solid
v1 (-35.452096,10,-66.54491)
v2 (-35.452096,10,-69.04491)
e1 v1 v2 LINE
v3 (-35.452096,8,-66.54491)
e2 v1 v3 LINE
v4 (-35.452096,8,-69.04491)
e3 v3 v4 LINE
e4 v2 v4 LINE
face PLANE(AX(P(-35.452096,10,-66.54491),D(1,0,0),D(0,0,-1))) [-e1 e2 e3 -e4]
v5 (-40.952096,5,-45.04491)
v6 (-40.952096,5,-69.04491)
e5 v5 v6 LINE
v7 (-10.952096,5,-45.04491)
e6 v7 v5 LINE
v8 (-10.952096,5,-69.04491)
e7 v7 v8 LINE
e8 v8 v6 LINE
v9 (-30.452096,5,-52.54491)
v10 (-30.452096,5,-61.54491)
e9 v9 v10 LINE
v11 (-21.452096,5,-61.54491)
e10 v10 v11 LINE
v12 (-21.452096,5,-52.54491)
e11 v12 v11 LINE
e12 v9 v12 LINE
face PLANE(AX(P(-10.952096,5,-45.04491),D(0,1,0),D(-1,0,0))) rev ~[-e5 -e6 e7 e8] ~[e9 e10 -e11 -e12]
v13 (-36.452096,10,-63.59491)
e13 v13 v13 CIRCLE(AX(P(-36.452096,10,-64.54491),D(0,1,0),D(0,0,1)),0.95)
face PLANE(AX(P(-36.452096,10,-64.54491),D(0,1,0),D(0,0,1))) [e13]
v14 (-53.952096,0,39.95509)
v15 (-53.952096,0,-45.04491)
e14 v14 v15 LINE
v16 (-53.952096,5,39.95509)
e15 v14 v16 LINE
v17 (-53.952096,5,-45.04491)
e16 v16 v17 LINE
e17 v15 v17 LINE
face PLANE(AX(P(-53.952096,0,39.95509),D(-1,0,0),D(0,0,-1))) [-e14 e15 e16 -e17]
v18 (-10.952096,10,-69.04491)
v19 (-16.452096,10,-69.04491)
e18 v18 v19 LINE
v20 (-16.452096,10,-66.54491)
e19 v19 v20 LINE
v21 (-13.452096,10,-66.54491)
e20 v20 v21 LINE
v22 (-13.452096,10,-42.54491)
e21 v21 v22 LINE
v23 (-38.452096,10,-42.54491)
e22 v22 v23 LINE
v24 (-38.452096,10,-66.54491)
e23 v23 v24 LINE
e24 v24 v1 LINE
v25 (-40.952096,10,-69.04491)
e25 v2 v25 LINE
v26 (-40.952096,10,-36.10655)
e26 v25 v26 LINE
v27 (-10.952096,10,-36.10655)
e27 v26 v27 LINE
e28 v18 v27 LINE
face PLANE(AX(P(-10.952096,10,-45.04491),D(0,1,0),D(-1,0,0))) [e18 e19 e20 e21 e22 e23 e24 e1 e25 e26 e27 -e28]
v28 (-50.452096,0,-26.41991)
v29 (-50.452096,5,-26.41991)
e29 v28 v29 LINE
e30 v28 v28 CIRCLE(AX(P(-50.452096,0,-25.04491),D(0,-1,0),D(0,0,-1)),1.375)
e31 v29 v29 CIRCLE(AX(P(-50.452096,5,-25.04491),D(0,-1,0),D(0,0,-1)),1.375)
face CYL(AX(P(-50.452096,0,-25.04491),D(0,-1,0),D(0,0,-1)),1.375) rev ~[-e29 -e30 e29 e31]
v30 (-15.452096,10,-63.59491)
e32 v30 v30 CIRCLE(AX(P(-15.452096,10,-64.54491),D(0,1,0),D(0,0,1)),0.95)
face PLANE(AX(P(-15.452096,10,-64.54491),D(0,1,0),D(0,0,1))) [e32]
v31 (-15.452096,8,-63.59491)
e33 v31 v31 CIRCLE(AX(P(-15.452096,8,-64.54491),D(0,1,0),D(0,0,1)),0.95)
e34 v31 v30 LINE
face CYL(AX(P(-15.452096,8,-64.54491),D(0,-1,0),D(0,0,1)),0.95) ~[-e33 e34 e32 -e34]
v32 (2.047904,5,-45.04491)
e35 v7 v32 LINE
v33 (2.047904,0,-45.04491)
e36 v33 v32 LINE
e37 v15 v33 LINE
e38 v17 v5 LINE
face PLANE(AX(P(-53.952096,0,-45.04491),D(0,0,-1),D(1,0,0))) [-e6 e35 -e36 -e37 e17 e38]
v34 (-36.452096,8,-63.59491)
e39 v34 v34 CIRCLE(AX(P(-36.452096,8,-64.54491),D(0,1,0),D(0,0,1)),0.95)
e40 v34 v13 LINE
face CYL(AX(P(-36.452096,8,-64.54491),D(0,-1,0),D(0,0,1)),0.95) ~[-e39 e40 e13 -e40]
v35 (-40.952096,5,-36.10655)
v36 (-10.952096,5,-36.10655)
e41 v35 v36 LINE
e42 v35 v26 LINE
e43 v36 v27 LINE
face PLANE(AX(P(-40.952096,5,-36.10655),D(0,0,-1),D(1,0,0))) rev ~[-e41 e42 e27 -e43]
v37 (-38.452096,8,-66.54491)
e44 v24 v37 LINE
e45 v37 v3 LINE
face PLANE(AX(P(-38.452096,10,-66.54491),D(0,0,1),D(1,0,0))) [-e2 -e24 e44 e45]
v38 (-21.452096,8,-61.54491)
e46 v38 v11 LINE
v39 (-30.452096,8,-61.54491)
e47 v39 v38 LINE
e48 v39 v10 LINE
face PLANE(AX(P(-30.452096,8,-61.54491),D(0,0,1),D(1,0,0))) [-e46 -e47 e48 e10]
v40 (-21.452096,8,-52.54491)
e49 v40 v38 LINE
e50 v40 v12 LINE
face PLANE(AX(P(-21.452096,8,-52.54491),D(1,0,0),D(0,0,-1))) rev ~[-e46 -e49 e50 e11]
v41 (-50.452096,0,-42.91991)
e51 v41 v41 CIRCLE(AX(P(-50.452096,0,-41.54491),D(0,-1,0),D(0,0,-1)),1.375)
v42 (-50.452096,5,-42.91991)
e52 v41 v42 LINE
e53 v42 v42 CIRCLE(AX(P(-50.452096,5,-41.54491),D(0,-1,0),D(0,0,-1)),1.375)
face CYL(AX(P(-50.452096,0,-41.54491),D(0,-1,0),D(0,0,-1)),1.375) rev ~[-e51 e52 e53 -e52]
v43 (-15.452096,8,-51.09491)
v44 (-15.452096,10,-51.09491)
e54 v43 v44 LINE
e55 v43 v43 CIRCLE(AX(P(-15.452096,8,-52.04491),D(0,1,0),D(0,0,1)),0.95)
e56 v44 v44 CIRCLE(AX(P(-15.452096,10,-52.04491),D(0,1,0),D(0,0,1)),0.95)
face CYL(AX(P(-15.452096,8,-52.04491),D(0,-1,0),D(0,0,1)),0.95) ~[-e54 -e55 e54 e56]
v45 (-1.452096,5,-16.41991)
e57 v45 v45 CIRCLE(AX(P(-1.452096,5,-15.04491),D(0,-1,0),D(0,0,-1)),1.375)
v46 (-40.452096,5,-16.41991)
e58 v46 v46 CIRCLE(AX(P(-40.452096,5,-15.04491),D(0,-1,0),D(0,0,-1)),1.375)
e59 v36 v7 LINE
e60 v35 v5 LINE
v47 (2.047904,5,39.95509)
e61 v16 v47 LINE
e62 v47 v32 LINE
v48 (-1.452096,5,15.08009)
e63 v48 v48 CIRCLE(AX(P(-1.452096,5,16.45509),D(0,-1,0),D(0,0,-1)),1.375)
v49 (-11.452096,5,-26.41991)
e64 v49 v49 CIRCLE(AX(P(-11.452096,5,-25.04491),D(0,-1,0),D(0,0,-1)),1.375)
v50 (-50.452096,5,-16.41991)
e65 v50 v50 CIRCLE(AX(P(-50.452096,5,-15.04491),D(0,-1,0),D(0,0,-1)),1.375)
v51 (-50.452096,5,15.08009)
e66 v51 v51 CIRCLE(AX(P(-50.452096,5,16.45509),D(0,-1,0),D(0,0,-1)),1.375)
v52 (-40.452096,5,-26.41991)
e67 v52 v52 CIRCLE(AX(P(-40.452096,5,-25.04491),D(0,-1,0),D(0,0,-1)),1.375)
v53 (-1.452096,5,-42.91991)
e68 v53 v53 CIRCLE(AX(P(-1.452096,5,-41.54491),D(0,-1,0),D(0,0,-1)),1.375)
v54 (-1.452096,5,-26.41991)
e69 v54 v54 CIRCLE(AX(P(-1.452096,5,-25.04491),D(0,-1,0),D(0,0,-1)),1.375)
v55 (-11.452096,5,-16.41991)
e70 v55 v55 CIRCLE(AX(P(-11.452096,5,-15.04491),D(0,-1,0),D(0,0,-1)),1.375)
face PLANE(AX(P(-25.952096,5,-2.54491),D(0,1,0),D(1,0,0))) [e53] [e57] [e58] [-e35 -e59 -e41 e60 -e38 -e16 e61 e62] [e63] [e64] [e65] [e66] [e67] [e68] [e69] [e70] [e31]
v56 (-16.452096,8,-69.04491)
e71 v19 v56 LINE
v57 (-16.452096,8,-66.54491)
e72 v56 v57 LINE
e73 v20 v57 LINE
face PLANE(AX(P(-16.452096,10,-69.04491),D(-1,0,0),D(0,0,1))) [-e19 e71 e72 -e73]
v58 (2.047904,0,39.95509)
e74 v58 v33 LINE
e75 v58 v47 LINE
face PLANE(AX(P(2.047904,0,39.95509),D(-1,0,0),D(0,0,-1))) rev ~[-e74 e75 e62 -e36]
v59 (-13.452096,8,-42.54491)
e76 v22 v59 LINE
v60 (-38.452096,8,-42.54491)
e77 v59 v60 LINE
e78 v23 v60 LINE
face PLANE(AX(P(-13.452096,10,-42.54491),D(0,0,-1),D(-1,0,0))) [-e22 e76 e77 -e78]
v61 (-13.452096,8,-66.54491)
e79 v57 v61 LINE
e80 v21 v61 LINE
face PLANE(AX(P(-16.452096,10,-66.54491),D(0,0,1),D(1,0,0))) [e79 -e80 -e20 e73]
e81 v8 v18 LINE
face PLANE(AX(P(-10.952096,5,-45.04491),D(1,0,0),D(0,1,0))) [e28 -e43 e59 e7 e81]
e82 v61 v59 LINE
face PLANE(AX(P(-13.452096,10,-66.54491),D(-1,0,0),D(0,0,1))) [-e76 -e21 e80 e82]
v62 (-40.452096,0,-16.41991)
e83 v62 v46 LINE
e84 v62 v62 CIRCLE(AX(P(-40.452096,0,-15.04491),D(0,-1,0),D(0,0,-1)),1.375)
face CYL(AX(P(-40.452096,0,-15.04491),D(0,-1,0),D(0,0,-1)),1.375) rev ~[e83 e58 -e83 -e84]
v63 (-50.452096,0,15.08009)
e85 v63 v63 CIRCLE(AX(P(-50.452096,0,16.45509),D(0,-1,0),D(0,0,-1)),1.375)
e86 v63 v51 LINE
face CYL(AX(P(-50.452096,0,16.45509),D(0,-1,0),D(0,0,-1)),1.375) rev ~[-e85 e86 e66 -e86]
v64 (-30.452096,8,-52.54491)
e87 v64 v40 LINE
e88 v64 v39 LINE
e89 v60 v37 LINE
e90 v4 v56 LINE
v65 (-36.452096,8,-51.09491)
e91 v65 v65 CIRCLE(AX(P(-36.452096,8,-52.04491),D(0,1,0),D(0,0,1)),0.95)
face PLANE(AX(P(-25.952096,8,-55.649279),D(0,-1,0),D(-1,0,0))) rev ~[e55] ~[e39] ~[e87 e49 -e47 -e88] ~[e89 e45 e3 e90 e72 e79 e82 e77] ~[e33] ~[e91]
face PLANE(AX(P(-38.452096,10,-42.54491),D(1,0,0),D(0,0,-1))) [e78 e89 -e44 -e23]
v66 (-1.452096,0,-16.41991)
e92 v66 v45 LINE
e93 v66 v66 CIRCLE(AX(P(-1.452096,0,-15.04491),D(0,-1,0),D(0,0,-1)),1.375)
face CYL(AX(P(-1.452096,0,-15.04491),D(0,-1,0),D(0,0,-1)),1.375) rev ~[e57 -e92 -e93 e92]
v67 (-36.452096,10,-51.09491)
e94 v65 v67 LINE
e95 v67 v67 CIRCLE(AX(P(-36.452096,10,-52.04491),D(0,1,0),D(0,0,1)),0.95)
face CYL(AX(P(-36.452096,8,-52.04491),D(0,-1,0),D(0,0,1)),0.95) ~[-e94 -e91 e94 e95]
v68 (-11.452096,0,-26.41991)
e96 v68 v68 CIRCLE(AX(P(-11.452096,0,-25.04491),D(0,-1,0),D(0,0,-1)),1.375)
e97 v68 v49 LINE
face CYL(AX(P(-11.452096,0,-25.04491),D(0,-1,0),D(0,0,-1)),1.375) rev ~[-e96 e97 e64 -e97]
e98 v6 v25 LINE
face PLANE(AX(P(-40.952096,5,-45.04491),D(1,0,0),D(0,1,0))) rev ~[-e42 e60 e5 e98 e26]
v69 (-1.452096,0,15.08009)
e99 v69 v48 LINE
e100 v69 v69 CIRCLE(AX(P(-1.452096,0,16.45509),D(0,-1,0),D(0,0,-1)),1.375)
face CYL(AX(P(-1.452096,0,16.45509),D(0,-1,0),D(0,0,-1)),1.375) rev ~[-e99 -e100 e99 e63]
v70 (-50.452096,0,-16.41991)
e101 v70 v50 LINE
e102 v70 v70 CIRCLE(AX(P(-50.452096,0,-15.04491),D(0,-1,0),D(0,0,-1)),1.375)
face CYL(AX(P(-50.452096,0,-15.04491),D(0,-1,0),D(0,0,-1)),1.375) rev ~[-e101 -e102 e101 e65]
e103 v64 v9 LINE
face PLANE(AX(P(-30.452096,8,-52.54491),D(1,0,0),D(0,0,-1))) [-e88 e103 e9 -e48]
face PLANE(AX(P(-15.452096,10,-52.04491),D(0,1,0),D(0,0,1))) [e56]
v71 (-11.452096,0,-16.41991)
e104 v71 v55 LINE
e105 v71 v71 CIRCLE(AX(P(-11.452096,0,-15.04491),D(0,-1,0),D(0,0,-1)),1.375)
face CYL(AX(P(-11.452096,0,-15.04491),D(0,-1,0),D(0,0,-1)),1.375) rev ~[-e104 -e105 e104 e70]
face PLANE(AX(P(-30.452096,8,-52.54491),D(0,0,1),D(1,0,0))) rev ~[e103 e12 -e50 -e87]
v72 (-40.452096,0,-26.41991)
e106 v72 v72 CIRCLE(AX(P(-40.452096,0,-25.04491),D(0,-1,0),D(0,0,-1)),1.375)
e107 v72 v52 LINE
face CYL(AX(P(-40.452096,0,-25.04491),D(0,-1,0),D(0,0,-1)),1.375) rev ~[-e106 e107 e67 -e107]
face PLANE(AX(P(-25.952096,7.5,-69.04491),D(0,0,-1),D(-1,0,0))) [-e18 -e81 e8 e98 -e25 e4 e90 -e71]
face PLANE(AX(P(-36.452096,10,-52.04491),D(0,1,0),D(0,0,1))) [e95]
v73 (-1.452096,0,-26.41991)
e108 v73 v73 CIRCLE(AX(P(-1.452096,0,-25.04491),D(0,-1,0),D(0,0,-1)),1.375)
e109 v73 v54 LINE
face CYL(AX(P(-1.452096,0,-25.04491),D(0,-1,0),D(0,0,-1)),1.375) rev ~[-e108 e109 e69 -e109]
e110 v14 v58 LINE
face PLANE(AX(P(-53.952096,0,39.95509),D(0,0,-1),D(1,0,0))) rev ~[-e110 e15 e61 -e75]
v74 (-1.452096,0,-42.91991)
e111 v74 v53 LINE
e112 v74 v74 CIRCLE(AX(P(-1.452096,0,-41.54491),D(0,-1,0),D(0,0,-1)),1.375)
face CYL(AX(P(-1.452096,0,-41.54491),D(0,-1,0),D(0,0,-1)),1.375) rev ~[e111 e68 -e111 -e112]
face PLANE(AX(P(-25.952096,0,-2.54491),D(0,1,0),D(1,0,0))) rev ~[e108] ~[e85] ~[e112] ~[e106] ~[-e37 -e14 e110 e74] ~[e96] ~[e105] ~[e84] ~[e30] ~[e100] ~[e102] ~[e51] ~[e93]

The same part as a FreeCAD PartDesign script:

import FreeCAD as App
import Part
import Sketcher
Q = App.Units.Quantity


def add_polygon(sketch, points):
    """Adds a closed chain of lines whose ends are joined by coincident constraints."""
    first, n = sketch.GeometryCount, len(points)
    for a, b in zip(points, points[1:] + points[:1]):
        sketch.addGeometry(Part.LineSegment(App.Vector(*a, 0), App.Vector(*b, 0)), False)
    for i in range(n):
        sketch.addConstraint(Sketcher.Constraint("Coincident", first + i, 2, first + (i + 1) % n, 1))

doc = App.newDocument("Part")
body = doc.addObject("PartDesign::Body", "Body")

# Sketch on XZ plane
sketch1 = doc.addObject("Sketcher::SketchObject", "Sketch")
body.addObject(sketch1)
sketch1.AttachmentSupport = (doc.XZ_Plane, [""])
sketch1.MapMode = "FlatFace"
add_polygon(sketch1, [(-54, -45), (-54, 40), (2, 40), (2, -45)])  # lines 0-3
sketch1.addConstraint([
    Sketcher.Constraint("Vertical", 0),
    Sketcher.Constraint("Horizontal", 1),
    Sketcher.Constraint("Vertical", 2),
    Sketcher.Constraint("Horizontal", 3),
    Sketcher.Constraint("DistanceX", 1, 1, 1, 2, Q("56 mm")),
    Sketcher.Constraint("DistanceY", 0, 1, 0, 2, Q("85 mm")),
    Sketcher.Constraint("DistanceY", -1, 1, 0, 2, Q("39.95509 mm")),
    Sketcher.Constraint("DistanceX", 0, 2, -1, 1, Q("53.952096 mm")),
])
pad1 = doc.addObject("PartDesign::Pad", "Pad")
body.addObject(pad1)
pad1.Profile = sketch1
pad1.Length = 5
pad1.Reversed = True

# Sketch on XZ plane
sketch2 = doc.addObject("Sketcher::SketchObject", "Sketch001")
body.addObject(sketch2)
sketch2.AttachmentSupport = (doc.XZ_Plane, [""])
sketch2.MapMode = "FlatFace"
sketch2.addGeometry([
    Part.Circle(App.Vector(-50.5, -41.5, 0), App.Vector(0, 0, 1), 1.4),
    Part.Circle(App.Vector(-1.5, -41.5, 0), App.Vector(0, 0, 1), 1.4),
    Part.Circle(App.Vector(-50.5, 16.5, 0), App.Vector(0, 0, 1), 1.4),
    Part.Circle(App.Vector(-1.5, 16.5, 0), App.Vector(0, 0, 1), 1.4),
], False)
sketch2.addConstraint([
    Sketcher.Constraint("Equal", 0, 1),
    Sketcher.Constraint("Equal", 1, 2),
    Sketcher.Constraint("Equal", 2, 3),
    Sketcher.Constraint("Horizontal", 0, 3, 1, 3),
    Sketcher.Constraint("Horizontal", 2, 3, 3, 3),
    Sketcher.Constraint("Vertical", 0, 3, 2, 3),
    Sketcher.Constraint("Vertical", 1, 3, 3, 3),
    Sketcher.Constraint("Diameter", 0, Q("2.75 mm")),
    Sketcher.Constraint("DistanceX", 0, 3, 1, 3, Q("49 mm")),
    Sketcher.Constraint("DistanceY", 0, 3, 2, 3, Q("58 mm")),
    Sketcher.Constraint("DistanceY", 0, 3, -1, 1, Q("41.54491 mm")),
    Sketcher.Constraint("DistanceX", 0, 3, -1, 1, Q("50.452096 mm")),
])
pocket1 = doc.addObject("PartDesign::Pocket", "Pocket")
body.addObject(pocket1)
pocket1.Profile = sketch2
pocket1.Length = 5

# Sketch on XZ plane
sketch3 = doc.addObject("Sketcher::SketchObject", "Sketch002")
body.addObject(sketch3)
sketch3.AttachmentSupport = (doc.XZ_Plane, [""])
sketch3.MapMode = "FlatFace"
sketch3.addGeometry([
    Part.Circle(App.Vector(-50.5, -25, 0), App.Vector(0, 0, 1), 1.4),  # 0
    Part.Circle(App.Vector(-50.5, -15, 0), App.Vector(0, 0, 1), 1.4),  # 1
    Part.Circle(App.Vector(-40.5, -15, 0), App.Vector(0, 0, 1), 1.4),  # 2
    Part.Circle(App.Vector(-40.5, -25, 0), App.Vector(0, 0, 1), 1.4),  # 3
    Part.Circle(App.Vector(-1.5, -25, 0), App.Vector(0, 0, 1), 1.4),  # 4
    Part.Circle(App.Vector(-11.5, -25, 0), App.Vector(0, 0, 1), 1.4),  # 5
    Part.Circle(App.Vector(-1.5, -15, 0), App.Vector(0, 0, 1), 1.4),  # 6
    Part.Circle(App.Vector(-11.5, -15, 0), App.Vector(0, 0, 1), 1.4),  # 7
], False)
sketch3.addConstraint([
    Sketcher.Constraint("Equal", 0, 1),
    Sketcher.Constraint("Equal", 1, 2),
    Sketcher.Constraint("Equal", 2, 3),
    Sketcher.Constraint("Equal", 3, 4),
    Sketcher.Constraint("Equal", 4, 5),
    Sketcher.Constraint("Equal", 5, 6),
    Sketcher.Constraint("Equal", 6, 7),
    Sketcher.Constraint("Horizontal", 1, 3, 2, 3),
    Sketcher.Constraint("Horizontal", 0, 3, 3, 3),
    Sketcher.Constraint("Horizontal", 3, 3, 4, 3),
    Sketcher.Constraint("Horizontal", 4, 3, 5, 3),
    Sketcher.Constraint("Horizontal", 2, 3, 6, 3),
    Sketcher.Constraint("Horizontal", 6, 3, 7, 3),
    Sketcher.Constraint("Vertical", 0, 3, 1, 3),
    Sketcher.Constraint("Vertical", 2, 3, 3, 3),
    Sketcher.Constraint("Vertical", 4, 3, 6, 3),
    Sketcher.Constraint("Vertical", 5, 3, 7, 3),
    Sketcher.Constraint("Diameter", 0, Q("2.75 mm")),
    Sketcher.Constraint("DistanceY", 0, 3, 1, 3, Q("10 mm")),
    Sketcher.Constraint("DistanceX", 1, 3, 2, 3, Q("10 mm")),
    Sketcher.Constraint("DistanceX", 3, 3, 4, 3, Q("39 mm")),
    Sketcher.Constraint("DistanceX", 5, 3, 4, 3, Q("10 mm")),
    Sketcher.Constraint("DistanceY", 0, 3, -1, 1, Q("25.04491 mm")),
    Sketcher.Constraint("DistanceX", 0, 3, -1, 1, Q("50.452096 mm")),
])
pocket2 = doc.addObject("PartDesign::Pocket", "Pocket001")
body.addObject(pocket2)
pocket2.Profile = sketch3
pocket2.Length = 5

# Sketch on XZ plane
sketch4 = doc.addObject("Sketcher::SketchObject", "Sketch003")
body.addObject(sketch4)
sketch4.AttachmentSupport = (doc.XZ_Plane, [""])
sketch4.MapMode = "FlatFace"
sketch4.AttachmentOffset = App.Placement(App.Vector(0, 0, -5), App.Rotation())
add_polygon(sketch4, [(-41, -45), (-41, -36), (-11, -36), (-11, -45)])  # lines 0-3
sketch4.addConstraint([
    Sketcher.Constraint("Vertical", 0),
    Sketcher.Constraint("Horizontal", 1),
    Sketcher.Constraint("Vertical", 2),
    Sketcher.Constraint("Horizontal", 3),
    Sketcher.Constraint("DistanceX", 1, 1, 1, 2, Q("30 mm")),
    Sketcher.Constraint("DistanceY", 0, 1, 0, 2, Q("8.93836 mm")),
    Sketcher.Constraint("DistanceY", 0, 2, -1, 1, Q("36.10655 mm")),
    Sketcher.Constraint("DistanceX", 0, 2, -1, 1, Q("40.952096 mm")),
])
pad2 = doc.addObject("PartDesign::Pad", "Pad001")
body.addObject(pad2)
pad2.Profile = sketch4
pad2.Length = 5
pad2.Reversed = True

# Sketch on XY plane
sketch5 = doc.addObject("Sketcher::SketchObject", "Sketch004")
body.addObject(sketch5)
sketch5.AttachmentSupport = (doc.XY_Plane, [""])
sketch5.MapMode = "FlatFace"
sketch5.AttachmentOffset = App.Placement(App.Vector(0, 0, -45.04491), App.Rotation())
add_polygon(sketch5, [(-11, 10), (-11, 5), (-41, 5), (-41, 10)])  # lines 0-3
sketch5.addConstraint([
    Sketcher.Constraint("Vertical", 0),
    Sketcher.Constraint("Horizontal", 1),
    Sketcher.Constraint("Vertical", 2),
    Sketcher.Constraint("Horizontal", 3),
    Sketcher.Constraint("DistanceX", 1, 2, 1, 1, Q("30 mm")),
    Sketcher.Constraint("DistanceY", 0, 2, 0, 1, Q("5 mm")),
    Sketcher.Constraint("DistanceY", -1, 1, 0, 2, Q("5 mm")),
    Sketcher.Constraint("DistanceX", 0, 2, -1, 1, Q("10.952096 mm")),
])
pad3 = doc.addObject("PartDesign::Pad", "Pad002")
body.addObject(pad3)
pad3.Profile = sketch5
pad3.Length = 24
pad3.Reversed = True

# Sketch on XZ plane
sketch6 = doc.addObject("Sketcher::SketchObject", "Sketch005")
body.addObject(sketch6)
sketch6.AttachmentSupport = (doc.XZ_Plane, [""])
sketch6.MapMode = "FlatFace"
sketch6.AttachmentOffset = App.Placement(App.Vector(0, 0, -10), App.Rotation())
add_polygon(sketch6, [(-35.5, -66.5), (-38.5, -66.5), (-38.5, -42.5), (-13.5, -42.5), (-13.5, -66.5), (-16.5, -66.5), (-16.5, -69), (-35.5, -69)])  # lines 0-7
sketch6.addConstraint([
    Sketcher.Constraint("Horizontal", 0),
    Sketcher.Constraint("Vertical", 1),
    Sketcher.Constraint("Horizontal", 2),
    Sketcher.Constraint("Vertical", 3),
    Sketcher.Constraint("Horizontal", 4),
    Sketcher.Constraint("Vertical", 5),
    Sketcher.Constraint("Horizontal", 6),
    Sketcher.Constraint("Vertical", 7),
    Sketcher.Constraint("Horizontal", 0, 2, 3, 2),
    Sketcher.Constraint("Equal", 0, 4),
    Sketcher.Constraint("DistanceX", 0, 2, 0, 1, Q("3 mm")),
    Sketcher.Constraint("DistanceX", 2, 1, 2, 2, Q("25 mm")),
    Sketcher.Constraint("DistanceY", 1, 1, 1, 2, Q("24 mm")),
    Sketcher.Constraint("DistanceY", 5, 2, 5, 1, Q("2.5 mm")),
    Sketcher.Constraint("DistanceY", 0, 2, -1, 1, Q("66.54491 mm")),
    Sketcher.Constraint("DistanceX", 0, 2, -1, 1, Q("38.452096 mm")),
])
pocket3 = doc.addObject("PartDesign::Pocket", "Pocket002")
body.addObject(pocket3)
pocket3.Profile = sketch6
pocket3.Length = 2
pocket3.Reversed = True

# Sketch on XZ plane
sketch7 = doc.addObject("Sketcher::SketchObject", "Sketch006")
body.addObject(sketch7)
sketch7.AttachmentSupport = (doc.XZ_Plane, [""])
sketch7.MapMode = "FlatFace"
sketch7.AttachmentOffset = App.Placement(App.Vector(0, 0, -8), App.Rotation())
add_polygon(sketch7, [(-30, -62), (-30, -53), (-21, -53), (-21, -62)])  # lines 0-3
sketch7.addConstraint([
    Sketcher.Constraint("Vertical", 0),
    Sketcher.Constraint("Horizontal", 1),
    Sketcher.Constraint("Vertical", 2),
    Sketcher.Constraint("Horizontal", 3),
    Sketcher.Constraint("Equal", 3, 0),
    Sketcher.Constraint("DistanceX", 1, 1, 1, 2, Q("9 mm")),
    Sketcher.Constraint("DistanceY", 0, 2, -1, 1, Q("52.54491 mm")),
    Sketcher.Constraint("DistanceX", 0, 2, -1, 1, Q("30.452096 mm")),
])
pocket4 = doc.addObject("PartDesign::Pocket", "Pocket003")
body.addObject(pocket4)
pocket4.Profile = sketch7
pocket4.Length = 3
pocket4.Reversed = True

# Sketch on XZ plane
sketch8 = doc.addObject("Sketcher::SketchObject", "Sketch007")
body.addObject(sketch8)
sketch8.AttachmentSupport = (doc.XZ_Plane, [""])
sketch8.MapMode = "FlatFace"
sketch8.AttachmentOffset = App.Placement(App.Vector(0, 0, -8), App.Rotation())
sketch8.addGeometry([
    Part.Circle(App.Vector(-36.5, -64.5, 0), App.Vector(0, 0, 1), 0.9),
    Part.Circle(App.Vector(-15.5, -64.5, 0), App.Vector(0, 0, 1), 0.9),
    Part.Circle(App.Vector(-15.5, -52, 0), App.Vector(0, 0, 1), 0.9),
    Part.Circle(App.Vector(-36.5, -52, 0), App.Vector(0, 0, 1), 0.9),
], False)
sketch8.addConstraint([
    Sketcher.Constraint("Equal", 0, 1),
    Sketcher.Constraint("Equal", 1, 2),
    Sketcher.Constraint("Equal", 2, 3),
    Sketcher.Constraint("Horizontal", 0, 3, 1, 3),
    Sketcher.Constraint("Horizontal", 2, 3, 3, 3),
    Sketcher.Constraint("Vertical", 1, 3, 2, 3),
    Sketcher.Constraint("Vertical", 0, 3, 3, 3),
    Sketcher.Constraint("Diameter", 0, Q("1.9 mm")),
    Sketcher.Constraint("DistanceX", 0, 3, 1, 3, Q("21 mm")),
    Sketcher.Constraint("DistanceY", 1, 3, 2, 3, Q("12.5 mm")),
    Sketcher.Constraint("DistanceY", 0, 3, -1, 1, Q("64.54491 mm")),
    Sketcher.Constraint("DistanceX", 0, 3, -1, 1, Q("36.452096 mm")),
])
pad4 = doc.addObject("PartDesign::Pad", "Pad003")
body.addObject(pad4)
pad4.Profile = sketch8
pad4.Length = 2
pad4.Reversed = True

doc.recompute()
